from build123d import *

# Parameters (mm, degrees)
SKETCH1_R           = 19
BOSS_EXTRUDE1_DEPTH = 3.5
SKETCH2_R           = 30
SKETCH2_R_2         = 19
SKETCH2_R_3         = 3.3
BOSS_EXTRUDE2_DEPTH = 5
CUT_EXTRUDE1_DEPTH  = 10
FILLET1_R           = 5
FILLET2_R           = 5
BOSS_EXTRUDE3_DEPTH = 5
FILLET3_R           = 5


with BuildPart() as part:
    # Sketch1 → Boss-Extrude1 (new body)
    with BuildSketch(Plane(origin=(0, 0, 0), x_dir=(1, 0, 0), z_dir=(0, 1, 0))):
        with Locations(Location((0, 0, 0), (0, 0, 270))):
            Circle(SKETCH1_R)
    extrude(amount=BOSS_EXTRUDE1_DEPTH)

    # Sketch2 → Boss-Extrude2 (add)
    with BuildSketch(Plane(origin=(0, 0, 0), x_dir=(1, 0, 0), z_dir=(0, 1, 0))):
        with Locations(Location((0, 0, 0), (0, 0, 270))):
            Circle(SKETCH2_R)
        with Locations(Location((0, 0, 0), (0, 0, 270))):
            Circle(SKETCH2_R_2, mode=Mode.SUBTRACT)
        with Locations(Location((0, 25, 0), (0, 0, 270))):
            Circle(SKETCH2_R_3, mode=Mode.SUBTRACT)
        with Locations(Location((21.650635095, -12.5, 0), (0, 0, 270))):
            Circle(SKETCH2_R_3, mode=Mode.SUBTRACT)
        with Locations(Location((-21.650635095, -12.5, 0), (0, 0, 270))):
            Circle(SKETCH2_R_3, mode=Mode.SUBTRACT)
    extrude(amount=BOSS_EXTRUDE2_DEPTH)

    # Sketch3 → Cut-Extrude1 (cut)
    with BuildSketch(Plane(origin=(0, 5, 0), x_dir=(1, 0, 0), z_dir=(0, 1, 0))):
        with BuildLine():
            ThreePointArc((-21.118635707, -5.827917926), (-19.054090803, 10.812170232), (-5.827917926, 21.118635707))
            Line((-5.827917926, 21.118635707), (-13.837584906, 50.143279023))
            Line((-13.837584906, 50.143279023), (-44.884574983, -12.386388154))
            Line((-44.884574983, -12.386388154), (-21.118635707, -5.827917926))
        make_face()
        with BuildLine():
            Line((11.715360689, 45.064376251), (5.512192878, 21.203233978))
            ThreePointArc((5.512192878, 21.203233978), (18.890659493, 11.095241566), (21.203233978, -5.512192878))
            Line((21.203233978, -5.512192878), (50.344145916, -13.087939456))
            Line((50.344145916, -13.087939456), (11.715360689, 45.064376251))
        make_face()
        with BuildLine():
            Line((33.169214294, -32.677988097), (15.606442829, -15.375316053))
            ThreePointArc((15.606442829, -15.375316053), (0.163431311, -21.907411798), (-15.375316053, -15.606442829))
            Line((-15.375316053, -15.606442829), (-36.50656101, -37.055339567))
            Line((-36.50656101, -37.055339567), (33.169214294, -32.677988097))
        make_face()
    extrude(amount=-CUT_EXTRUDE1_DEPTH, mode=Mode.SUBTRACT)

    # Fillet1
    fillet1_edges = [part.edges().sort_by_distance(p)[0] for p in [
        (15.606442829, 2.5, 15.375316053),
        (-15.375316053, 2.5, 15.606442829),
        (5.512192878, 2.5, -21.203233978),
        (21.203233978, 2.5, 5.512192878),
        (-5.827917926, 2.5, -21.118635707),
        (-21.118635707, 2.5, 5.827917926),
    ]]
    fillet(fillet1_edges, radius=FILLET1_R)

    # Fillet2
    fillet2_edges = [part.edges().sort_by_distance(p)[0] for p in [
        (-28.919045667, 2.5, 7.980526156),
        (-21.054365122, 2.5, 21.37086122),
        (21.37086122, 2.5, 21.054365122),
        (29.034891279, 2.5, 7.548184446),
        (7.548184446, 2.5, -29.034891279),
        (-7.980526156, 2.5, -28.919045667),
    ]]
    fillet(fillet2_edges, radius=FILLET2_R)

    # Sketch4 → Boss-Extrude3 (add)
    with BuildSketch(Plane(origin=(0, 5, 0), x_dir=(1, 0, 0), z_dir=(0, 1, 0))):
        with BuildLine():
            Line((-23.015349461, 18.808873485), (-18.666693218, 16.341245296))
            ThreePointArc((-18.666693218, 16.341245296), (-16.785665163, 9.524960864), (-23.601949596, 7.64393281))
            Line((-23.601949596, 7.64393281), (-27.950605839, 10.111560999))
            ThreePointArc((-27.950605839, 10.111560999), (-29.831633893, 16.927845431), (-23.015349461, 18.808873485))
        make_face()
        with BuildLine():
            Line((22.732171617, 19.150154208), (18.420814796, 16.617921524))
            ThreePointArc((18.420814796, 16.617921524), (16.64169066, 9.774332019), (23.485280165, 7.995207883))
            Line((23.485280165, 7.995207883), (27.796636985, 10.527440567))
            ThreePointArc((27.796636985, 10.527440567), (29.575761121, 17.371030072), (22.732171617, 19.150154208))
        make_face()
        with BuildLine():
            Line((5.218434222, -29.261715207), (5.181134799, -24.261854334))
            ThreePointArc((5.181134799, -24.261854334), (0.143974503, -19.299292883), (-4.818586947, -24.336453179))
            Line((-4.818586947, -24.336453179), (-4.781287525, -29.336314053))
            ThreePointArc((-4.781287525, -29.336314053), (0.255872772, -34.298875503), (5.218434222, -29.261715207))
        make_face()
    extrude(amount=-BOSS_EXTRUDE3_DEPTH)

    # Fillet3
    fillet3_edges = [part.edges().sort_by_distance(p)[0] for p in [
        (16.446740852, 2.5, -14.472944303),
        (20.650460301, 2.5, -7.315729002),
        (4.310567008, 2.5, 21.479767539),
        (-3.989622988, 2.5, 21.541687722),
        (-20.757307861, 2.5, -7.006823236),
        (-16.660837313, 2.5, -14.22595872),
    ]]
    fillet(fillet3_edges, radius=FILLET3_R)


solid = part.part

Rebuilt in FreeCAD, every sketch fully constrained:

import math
import FreeCAD as App
import Part
import Sketcher
from FreeCAD import Vector


def edges_at(feature, points):
    """Names of the edges that pass closest to the given points."""
    edges = feature.Shape.Edges
    near = lambda p: min(range(len(edges)), key=lambda i: edges[i].distToShape(Part.Vertex(*p))[0])
    return sorted({f"Edge{near(p) + 1}" for p in points})

doc = App.newDocument("Part")
body = doc.addObject("PartDesign::Body", "Body")

# Sketch on XZ plane
sketch1 = body.newObject("Sketcher::SketchObject", "Sketch")
sketch1.AttachmentSupport = (doc.getObject("XZ_Plane"), [""])
sketch1.MapMode = "FlatFace"
sketch1.addGeometry(Part.Circle(Vector(0, 0, 0), Vector(0, 0, 1), 19), False)
sketch1.addConstraint(Sketcher.Constraint("Coincident", 0, 3, -1, 1))
sketch1.addConstraint(Sketcher.Constraint("Diameter", 0, 38.0))
pad1 = body.newObject("PartDesign::Pad", "Pad")
pad1.Profile = sketch1
pad1.Length = 3.5
pad1.Reversed = True

# Sketch on XZ plane
sketch2 = body.newObject("Sketcher::SketchObject", "Sketch001")
sketch2.AttachmentSupport = (doc.getObject("XZ_Plane"), [""])
sketch2.MapMode = "FlatFace"
sketch2.addGeometry(Part.Circle(Vector(0, 0, 0), Vector(0, 0, 1), 30), False)
sketch2.addGeometry(Part.Circle(Vector(0, -25, 0), Vector(0, 0, 1), 3.3), False)
sketch2.addGeometry(Part.Circle(Vector(-21.7, 12.5, 0), Vector(0, 0, 1), 3.3), False)
sketch2.addGeometry(Part.Circle(Vector(0, 0, 0), Vector(0, 0, 1), 19), False)
sketch2.addGeometry(Part.Circle(Vector(21.7, 12.5, 0), Vector(0, 0, 1), 3.3), False)
sketch2.addConstraint(Sketcher.Constraint("Coincident", 0, 3, -1, 1))
sketch2.addConstraint(Sketcher.Constraint("Coincident", 3, 3, -1, 1))
sketch2.addConstraint(Sketcher.Constraint("Equal", 1, 2))
sketch2.addConstraint(Sketcher.Constraint("Equal", 2, 4))
sketch2.addConstraint(Sketcher.Constraint("Symmetric", 2, 3, 4, 3, -2))
sketch2.addConstraint(Sketcher.Constraint("PointOnObject", 1, 3, -2))
sketch2.addConstraint(Sketcher.Constraint("Diameter", 0, 60.0))
sketch2.addConstraint(Sketcher.Constraint("Diameter", 3, 38.0))
sketch2.addConstraint(Sketcher.Constraint("Diameter", 1, 6.6))
sketch2.addConstraint(Sketcher.Constraint("DistanceY", 1, 3, -1, 1, 25.0))
sketch2.addConstraint(Sketcher.Constraint("DistanceY", -1, 1, 2, 3, 12.5))
sketch2.addConstraint(Sketcher.Constraint("DistanceX", 2, 3, 4, 3, 43.30127))
pad2 = body.newObject("PartDesign::Pad", "Pad001")
pad2.Profile = sketch2
pad2.Length = 5
pad2.Reversed = True

# Sketch on XZ plane
sketch3 = body.newObject("Sketcher::SketchObject", "Sketch002")
sketch3.AttachmentSupport = (doc.getObject("XZ_Plane"), [""])
sketch3.MapMode = "FlatFace"
sketch3.AttachmentOffset = App.Placement(Vector(0, 0, -5), App.Rotation())
sketch3.addGeometry(Part.ArcOfCircle(Part.Circle(Vector(0, 0, 0), Vector(0, 0, 1), 22), math.radians(165), math.radians(255)), False)
sketch3.addGeometry(Part.LineSegment(Vector(-6, -21, 0), Vector(-14, -50, 0)), False)
sketch3.addGeometry(Part.LineSegment(Vector(-14, -50, 0), Vector(-45, 12, 0)), False)
sketch3.addGeometry(Part.LineSegment(Vector(-45, 12, 0), Vector(-21, 6, 0)), False)
sketch3.addGeometry(Part.LineSegment(Vector(12, -45, 0), Vector(6, -21, 0)), False)
sketch3.addGeometry(Part.ArcOfCircle(Part.Circle(Vector(0, 0, 0), Vector(0, 0, 1), 22), math.radians(-75), math.radians(15)), False)
sketch3.addGeometry(Part.LineSegment(Vector(21, 6, 0), Vector(50, 13, 0)), False)
sketch3.addGeometry(Part.LineSegment(Vector(50, 13, 0), Vector(12, -45, 0)), False)
sketch3.addGeometry(Part.LineSegment(Vector(33, 33, 0), Vector(16, 15, 0)), False)
sketch3.addGeometry(Part.ArcOfCircle(Part.Circle(Vector(0, 0, 0), Vector(0, 0, 1), 22), math.radians(45), math.radians(135)), False)
sketch3.addGeometry(Part.LineSegment(Vector(-15, 16, 0), Vector(-37, 37, 0)), False)
sketch3.addGeometry(Part.LineSegment(Vector(-37, 37, 0), Vector(33, 33, 0)), False)
sketch3.addConstraint(Sketcher.Constraint("Coincident", 0, 2, 1, 1))
sketch3.addConstraint(Sketcher.Constraint("Coincident", 1, 2, 2, 1))
sketch3.addConstraint(Sketcher.Constraint("Coincident", 2, 2, 3, 1))
sketch3.addConstraint(Sketcher.Constraint("Coincident", 3, 2, 0, 1))
sketch3.addConstraint(Sketcher.Constraint("Coincident", 4, 2, 5, 1))
sketch3.addConstraint(Sketcher.Constraint("Coincident", 5, 2, 6, 1))
sketch3.addConstraint(Sketcher.Constraint("Coincident", 6, 2, 7, 1))
sketch3.addConstraint(Sketcher.Constraint("Coincident", 7, 2, 4, 1))
sketch3.addConstraint(Sketcher.Constraint("Coincident", 8, 2, 9, 1))
sketch3.addConstraint(Sketcher.Constraint("Coincident", 9, 2, 10, 1))
sketch3.addConstraint(Sketcher.Constraint("Coincident", 10, 2, 11, 1))
sketch3.addConstraint(Sketcher.Constraint("Coincident", 11, 2, 8, 1))
sketch3.addConstraint(Sketcher.Constraint("Coincident", 0, 3, -1, 1))
sketch3.addConstraint(Sketcher.Constraint("Coincident", 5, 3, -1, 1))
sketch3.addConstraint(Sketcher.Constraint("Coincident", 9, 3, -1, 1))
sketch3.addConstraint(Sketcher.Constraint("Equal", 0, 5))
sketch3.addConstraint(Sketcher.Constraint("Equal", 5, 9))
sketch3.addConstraint(Sketcher.Constraint("Perpendicular", 1, 3))
sketch3.addConstraint(Sketcher.Constraint("Perpendicular", 4, 6))
sketch3.addConstraint(Sketcher.Constraint("Perpendicular", 8, 10))
sketch3.addConstraint(Sketcher.Constraint("Equal", 3, 4))
sketch3.addConstraint(Sketcher.Constraint("Equal", 1, 6))
sketch3.addConstraint(Sketcher.Constraint("Equal", 2, 7))
sketch3.addConstraint(Sketcher.Constraint("Equal", 4, 8))
sketch3.addConstraint(Sketcher.Constraint("Equal", 6, 10))
sketch3.addConstraint(Sketcher.Constraint("Equal", 7, 11))
sketch3.addConstraint(Sketcher.Constraint("Radius", 0, 21.908021))
sketch3.addConstraint(Sketcher.Constraint("DistanceY", 4, 2, 0, 2, 0.084598))
sketch3.addConstraint(Sketcher.Constraint("DistanceY", 1, 2, -1, 1, 50.143279))
sketch3.addConstraint(Sketcher.Constraint("DistanceY", -1, 1, 2, 2, 12.386388))
sketch3.addConstraint(Sketcher.Constraint("DistanceY", -1, 1, 6, 2, 13.087939))
sketch3.addConstraint(Sketcher.Constraint("DistanceX", -1, 1, 7, 2, 11.715361))
sketch3.addConstraint(Sketcher.Constraint("DistanceX", 10, 2, -1, 1, 36.506561))
sketch3.addConstraint(Sketcher.Constraint("DistanceY", -1, 1, 10, 2, 37.05534))
sketch3.addConstraint(Sketcher.Constraint("DistanceX", 2, 2, 3, 2, 23.765939))
sketch3.addConstraint(Sketcher.Constraint("DistanceX", 8, 2, 5, 2, 5.596791))
pocket1 = body.newObject("PartDesign::Pocket", "Pocket")
pocket1.Profile = sketch3
pocket1.Length = 10
pocket1.Reversed = True
doc.recompute()

fillet = body.newObject("PartDesign::Fillet", "Fillet")
fillet.Base = (pocket1, edges_at(pocket1, [
    (15.606, 2.5, 15.375),
    (-15.375, 2.5, 15.606),
    (5.512, 2.5, -21.203),
    (21.203, 2.5, 5.512),
    (-5.828, 2.5, -21.119),
    (-21.119, 2.5, 5.828),
]))
fillet.Radius = 5
doc.recompute()

fillet2 = body.newObject("PartDesign::Fillet", "Fillet001")
fillet2.Base = (fillet, edges_at(fillet, [
    (-28.919, 2.5, 7.981),
    (-21.054, 2.5, 21.371),
    (21.371, 2.5, 21.054),
    (29.035, 2.5, 7.548),
    (7.548, 2.5, -29.035),
    (-7.981, 2.5, -28.919),
]))
fillet2.Radius = 5

# Sketch on XZ plane
sketch4 = body.newObject("Sketcher::SketchObject", "Sketch003")
sketch4.AttachmentSupport = (doc.getObject("XZ_Plane"), [""])
sketch4.MapMode = "FlatFace"
sketch4.AttachmentOffset = App.Placement(Vector(0, 0, -5), App.Rotation())
sketch4.addGeometry(Part.LineSegment(Vector(-18.7, -16.3, 0), Vector(-23, -18.8, 0)), False)
sketch4.addGeometry(Part.ArcOfCircle(Part.Circle(Vector(-25.5, -14.5, 0), Vector(0, 0, 1), 5), math.radians(120), math.radians(300)), False)
sketch4.addGeometry(Part.LineSegment(Vector(-28, -10.1, 0), Vector(-23.6, -7.6, 0)), False)
sketch4.addGeometry(Part.ArcOfCircle(Part.Circle(Vector(-21.1, -12, 0), Vector(0, 0, 1), 5), math.radians(-60), math.radians(120)), False)
sketch4.addGeometry(Part.LineSegment(Vector(22.7, -19.2, 0), Vector(18.4, -16.6, 0)), False)
sketch4.addGeometry(Part.ArcOfCircle(Part.Circle(Vector(21, -12.3, 0), Vector(0, 0, 1), 5), math.radians(60), math.radians(240)), False)
sketch4.addGeometry(Part.LineSegment(Vector(23.5, -8, 0), Vector(27.8, -10.5, 0)), False)
sketch4.addGeometry(Part.ArcOfCircle(Part.Circle(Vector(25.3, -14.8, 0), Vector(0, 0, 1), 5), math.radians(-120), math.radians(60)), False)
sketch4.addGeometry(Part.LineSegment(Vector(5.2, 29.3, 0), Vector(5.2, 24.3, 0)), False)
sketch4.addGeometry(Part.ArcOfCircle(Part.Circle(Vector(0.2, 24.3, 0), Vector(0, 0, 1), 5), math.radians(180), math.radians(360)), False)
sketch4.addGeometry(Part.LineSegment(Vector(-4.8, 24.3, 0), Vector(-4.8, 29.3, 0)), False)
sketch4.addGeometry(Part.ArcOfCircle(Part.Circle(Vector(0.2, 29.3, 0), Vector(0, 0, 1), 5), math.radians(0), math.radians(180)), False)
sketch4.addConstraint(Sketcher.Constraint("Tangent", 0, 2, 1, 2))
sketch4.addConstraint(Sketcher.Constraint("Tangent", 1, 1, 2, 1))
sketch4.addConstraint(Sketcher.Constraint("Tangent", 2, 2, 3, 2))
sketch4.addConstraint(Sketcher.Constraint("Tangent", 3, 1, 0, 1))
sketch4.addConstraint(Sketcher.Constraint("Tangent", 4, 2, 5, 2))
sketch4.addConstraint(Sketcher.Constraint("Tangent", 5, 1, 6, 1))
sketch4.addConstraint(Sketcher.Constraint("Tangent", 6, 2, 7, 2))
sketch4.addConstraint(Sketcher.Constraint("Tangent", 7, 1, 4, 1))
sketch4.addConstraint(Sketcher.Constraint("Tangent", 8, 2, 9, 2))
sketch4.addConstraint(Sketcher.Constraint("Tangent", 9, 1, 10, 1))
sketch4.addConstraint(Sketcher.Constraint("Tangent", 10, 2, 11, 2))
sketch4.addConstraint(Sketcher.Constraint("Tangent", 11, 1, 8, 1))
sketch4.addConstraint(Sketcher.Constraint("Equal", 1, 3))
sketch4.addConstraint(Sketcher.Constraint("Equal", 3, 5))
sketch4.addConstraint(Sketcher.Constraint("Equal", 5, 7))
sketch4.addConstraint(Sketcher.Constraint("Equal", 7, 9))
sketch4.addConstraint(Sketcher.Constraint("Equal", 9, 11))
sketch4.addConstraint(Sketcher.Constraint("Equal", 2, 4))
sketch4.addConstraint(Sketcher.Constraint("Equal", 6, 8))
sketch4.addConstraint(Sketcher.Constraint("Radius", 1, 5.0))
sketch4.addConstraint(Sketcher.Constraint("Distance", 0, 5.0))
sketch4.addConstraint(Sketcher.Constraint("DistanceX", 9, 3, 11, 3, 0.037299))
sketch4.addConstraint(Sketcher.Constraint("DistanceX", 2, 2, 0, 2, 0.5866))
sketch4.addConstraint(Sketcher.Constraint("DistanceX", 3, 3, -1, 1, 21.134321))
sketch4.addConstraint(Sketcher.Constraint("DistanceY", 3, 3, -1, 1, 11.992589))
sketch4.addConstraint(Sketcher.Constraint("DistanceY", 4, 2, -1, 1, 16.617922))
sketch4.addConstraint(Sketcher.Constraint("DistanceX", -1, 1, 5, 1, 23.48528))
sketch4.addConstraint(Sketcher.Constraint("DistanceY", 6, 2, -1, 1, 10.527441))
sketch4.addConstraint(Sketcher.Constraint("DistanceY", 5, 3, 9, 3, 36.605718))
sketch4.addConstraint(Sketcher.Constraint("DistanceX", 9, 3, 7, 3, 25.08313))
pad3 = body.newObject("PartDesign::Pad", "Pad002")
pad3.Profile = sketch4
pad3.Length = 5
doc.recompute()

fillet3 = body.newObject("PartDesign::Fillet", "Fillet002")
fillet3.Base = (pad3, edges_at(pad3, [
    (16.447, 2.5, -14.473),
    (20.65, 2.5, -7.316),
    (4.311, 2.5, 21.48),
    (-3.99, 2.5, 21.542),
    (-20.757, 2.5, -7.007),
    (-16.661, 2.5, -14.226),
]))
fillet3.Radius = 5

doc.recompute()
